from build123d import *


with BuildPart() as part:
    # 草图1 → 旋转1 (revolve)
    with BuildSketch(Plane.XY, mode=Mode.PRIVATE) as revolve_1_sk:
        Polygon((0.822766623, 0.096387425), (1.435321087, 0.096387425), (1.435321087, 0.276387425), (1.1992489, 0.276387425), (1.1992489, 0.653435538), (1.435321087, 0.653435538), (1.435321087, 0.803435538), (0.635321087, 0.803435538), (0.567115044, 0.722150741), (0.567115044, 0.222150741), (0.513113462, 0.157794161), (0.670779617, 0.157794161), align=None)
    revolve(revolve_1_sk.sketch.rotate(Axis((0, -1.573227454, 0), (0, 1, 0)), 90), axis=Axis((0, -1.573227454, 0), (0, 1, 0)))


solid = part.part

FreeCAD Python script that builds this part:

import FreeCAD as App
import Part
import Sketcher

V = App.Vector
Q = App.Units.Quantity


def add_polygon(sketch, points):
    """Adds a closed chain of lines whose ends are joined by coincident constraints."""
    first, n = sketch.GeometryCount, len(points)
    for a, b in zip(points, points[1:] + points[:1]):
        sketch.addGeometry(Part.LineSegment(App.Vector(*a, 0), App.Vector(*b, 0)), False)
    for i in range(n):
        sketch.addConstraint(Sketcher.Constraint("Coincident", first + i, 2, first + (i + 1) % n, 1))

doc = App.newDocument("Part")
params = doc.addObject("Spreadsheet::Sheet", "Params")
for row, (alias, value) in enumerate([
    ("sketch1_width", "0.8 mm"),
    ("sketch1_height", "0.5 mm"),
    ("sketch1_height2", "0.18 mm"),
    ("sketch1_height3", "0.15 mm"),
    ("revolution_angle", "360 deg"),
], start=1):
    params.set(f"A{row}", alias)
    params.set(f"B{row}", "=" + value)
    params.setAlias(f"B{row}", alias)

body = doc.addObject("PartDesign::Body", "Body")

# Sketch on XY plane
sketch1 = doc.addObject("Sketcher::SketchObject", "Sketch")
body.addObject(sketch1)
sketch1.AttachmentSupport = (doc.XY_Plane, [""])
sketch1.MapMode = "FlatFace"
add_polygon(sketch1, [(0.822767, 0.096387), (1.435321, 0.096387), (1.435321, 0.276387), (1.199249, 0.276387), (1.199249, 0.653436), (1.435321, 0.653436), (1.435321, 0.803436), (0.635321, 0.803436), (0.567115, 0.722151), (0.567115, 0.222151), (0.513113, 0.157794), (0.67078, 0.157794)])  # lines 0-11
sketch1.addConstraint(Sketcher.Constraint("Horizontal", 0))
sketch1.addConstraint(Sketcher.Constraint("Vertical", 1))
sketch1.addConstraint(Sketcher.Constraint("Horizontal", 2))
sketch1.addConstraint(Sketcher.Constraint("Vertical", 3))
sketch1.addConstraint(Sketcher.Constraint("Horizontal", 4))
sketch1.addConstraint(Sketcher.Constraint("Vertical", 5))
sketch1.addConstraint(Sketcher.Constraint("Horizontal", 6))
sketch1.addConstraint(Sketcher.Constraint("Vertical", 8))
sketch1.addConstraint(Sketcher.Constraint("Horizontal", 10))
sketch1.addConstraint(Sketcher.Constraint("Parallel", 7, 9))
sketch1.addConstraint(Sketcher.Constraint("Vertical", 1, 2, 4, 2))
sketch1.addConstraint(Sketcher.Constraint("Angle", 7, Q("-130 deg")))
sketch1.addConstraint(Sketcher.Constraint("Angle", 11, Q("-22 deg")))
sketch1.addConstraint(Sketcher.Constraint("DistanceX", 6, 2, 6, 1, 0.8))
sketch1.addConstraint(Sketcher.Constraint("DistanceY", 8, 2, 8, 1, 0.5))
sketch1.addConstraint(Sketcher.Constraint("DistanceY", 1, 1, 1, 2, 0.18))
sketch1.addConstraint(Sketcher.Constraint("DistanceY", 5, 1, 5, 2, 0.15))
sketch1.addConstraint(Sketcher.Constraint("DistanceX", 9, 2, 8, 2, 0.054002))
sketch1.addConstraint(Sketcher.Constraint("DistanceY", 3, 1, 3, 2, 0.377048))
sketch1.addConstraint(Sketcher.Constraint("Distance", 7, 0.10611))
sketch1.addConstraint(Sketcher.Constraint("DistanceX", 0, 1, 0, 2, 0.612554))
sketch1.addConstraint(Sketcher.Constraint("DistanceX", 2, 2, 2, 1, 0.236072))
sketch1.addConstraint(Sketcher.Constraint("DistanceX", -1, 1, 0, 2, 1.435321))
sketch1.addConstraint(Sketcher.Constraint("DistanceY", -1, 1, 7, 2, 0.722151))
sketch1.setExpression("Constraints[25]", "Params.sketch1_width")
sketch1.setExpression("Constraints[26]", "Params.sketch1_height")
sketch1.setExpression("Constraints[27]", "Params.sketch1_height2")
sketch1.setExpression("Constraints[28]", "Params.sketch1_height3")
revolution = doc.addObject("PartDesign::Revolution", "Revolution")
body.addObject(revolution)
revolution.Profile = sketch1
revolution.ReferenceAxis = (sketch1, ["V_Axis"])
revolution.setExpression("Angle", "Params.revolution_angle")

doc.recompute()
